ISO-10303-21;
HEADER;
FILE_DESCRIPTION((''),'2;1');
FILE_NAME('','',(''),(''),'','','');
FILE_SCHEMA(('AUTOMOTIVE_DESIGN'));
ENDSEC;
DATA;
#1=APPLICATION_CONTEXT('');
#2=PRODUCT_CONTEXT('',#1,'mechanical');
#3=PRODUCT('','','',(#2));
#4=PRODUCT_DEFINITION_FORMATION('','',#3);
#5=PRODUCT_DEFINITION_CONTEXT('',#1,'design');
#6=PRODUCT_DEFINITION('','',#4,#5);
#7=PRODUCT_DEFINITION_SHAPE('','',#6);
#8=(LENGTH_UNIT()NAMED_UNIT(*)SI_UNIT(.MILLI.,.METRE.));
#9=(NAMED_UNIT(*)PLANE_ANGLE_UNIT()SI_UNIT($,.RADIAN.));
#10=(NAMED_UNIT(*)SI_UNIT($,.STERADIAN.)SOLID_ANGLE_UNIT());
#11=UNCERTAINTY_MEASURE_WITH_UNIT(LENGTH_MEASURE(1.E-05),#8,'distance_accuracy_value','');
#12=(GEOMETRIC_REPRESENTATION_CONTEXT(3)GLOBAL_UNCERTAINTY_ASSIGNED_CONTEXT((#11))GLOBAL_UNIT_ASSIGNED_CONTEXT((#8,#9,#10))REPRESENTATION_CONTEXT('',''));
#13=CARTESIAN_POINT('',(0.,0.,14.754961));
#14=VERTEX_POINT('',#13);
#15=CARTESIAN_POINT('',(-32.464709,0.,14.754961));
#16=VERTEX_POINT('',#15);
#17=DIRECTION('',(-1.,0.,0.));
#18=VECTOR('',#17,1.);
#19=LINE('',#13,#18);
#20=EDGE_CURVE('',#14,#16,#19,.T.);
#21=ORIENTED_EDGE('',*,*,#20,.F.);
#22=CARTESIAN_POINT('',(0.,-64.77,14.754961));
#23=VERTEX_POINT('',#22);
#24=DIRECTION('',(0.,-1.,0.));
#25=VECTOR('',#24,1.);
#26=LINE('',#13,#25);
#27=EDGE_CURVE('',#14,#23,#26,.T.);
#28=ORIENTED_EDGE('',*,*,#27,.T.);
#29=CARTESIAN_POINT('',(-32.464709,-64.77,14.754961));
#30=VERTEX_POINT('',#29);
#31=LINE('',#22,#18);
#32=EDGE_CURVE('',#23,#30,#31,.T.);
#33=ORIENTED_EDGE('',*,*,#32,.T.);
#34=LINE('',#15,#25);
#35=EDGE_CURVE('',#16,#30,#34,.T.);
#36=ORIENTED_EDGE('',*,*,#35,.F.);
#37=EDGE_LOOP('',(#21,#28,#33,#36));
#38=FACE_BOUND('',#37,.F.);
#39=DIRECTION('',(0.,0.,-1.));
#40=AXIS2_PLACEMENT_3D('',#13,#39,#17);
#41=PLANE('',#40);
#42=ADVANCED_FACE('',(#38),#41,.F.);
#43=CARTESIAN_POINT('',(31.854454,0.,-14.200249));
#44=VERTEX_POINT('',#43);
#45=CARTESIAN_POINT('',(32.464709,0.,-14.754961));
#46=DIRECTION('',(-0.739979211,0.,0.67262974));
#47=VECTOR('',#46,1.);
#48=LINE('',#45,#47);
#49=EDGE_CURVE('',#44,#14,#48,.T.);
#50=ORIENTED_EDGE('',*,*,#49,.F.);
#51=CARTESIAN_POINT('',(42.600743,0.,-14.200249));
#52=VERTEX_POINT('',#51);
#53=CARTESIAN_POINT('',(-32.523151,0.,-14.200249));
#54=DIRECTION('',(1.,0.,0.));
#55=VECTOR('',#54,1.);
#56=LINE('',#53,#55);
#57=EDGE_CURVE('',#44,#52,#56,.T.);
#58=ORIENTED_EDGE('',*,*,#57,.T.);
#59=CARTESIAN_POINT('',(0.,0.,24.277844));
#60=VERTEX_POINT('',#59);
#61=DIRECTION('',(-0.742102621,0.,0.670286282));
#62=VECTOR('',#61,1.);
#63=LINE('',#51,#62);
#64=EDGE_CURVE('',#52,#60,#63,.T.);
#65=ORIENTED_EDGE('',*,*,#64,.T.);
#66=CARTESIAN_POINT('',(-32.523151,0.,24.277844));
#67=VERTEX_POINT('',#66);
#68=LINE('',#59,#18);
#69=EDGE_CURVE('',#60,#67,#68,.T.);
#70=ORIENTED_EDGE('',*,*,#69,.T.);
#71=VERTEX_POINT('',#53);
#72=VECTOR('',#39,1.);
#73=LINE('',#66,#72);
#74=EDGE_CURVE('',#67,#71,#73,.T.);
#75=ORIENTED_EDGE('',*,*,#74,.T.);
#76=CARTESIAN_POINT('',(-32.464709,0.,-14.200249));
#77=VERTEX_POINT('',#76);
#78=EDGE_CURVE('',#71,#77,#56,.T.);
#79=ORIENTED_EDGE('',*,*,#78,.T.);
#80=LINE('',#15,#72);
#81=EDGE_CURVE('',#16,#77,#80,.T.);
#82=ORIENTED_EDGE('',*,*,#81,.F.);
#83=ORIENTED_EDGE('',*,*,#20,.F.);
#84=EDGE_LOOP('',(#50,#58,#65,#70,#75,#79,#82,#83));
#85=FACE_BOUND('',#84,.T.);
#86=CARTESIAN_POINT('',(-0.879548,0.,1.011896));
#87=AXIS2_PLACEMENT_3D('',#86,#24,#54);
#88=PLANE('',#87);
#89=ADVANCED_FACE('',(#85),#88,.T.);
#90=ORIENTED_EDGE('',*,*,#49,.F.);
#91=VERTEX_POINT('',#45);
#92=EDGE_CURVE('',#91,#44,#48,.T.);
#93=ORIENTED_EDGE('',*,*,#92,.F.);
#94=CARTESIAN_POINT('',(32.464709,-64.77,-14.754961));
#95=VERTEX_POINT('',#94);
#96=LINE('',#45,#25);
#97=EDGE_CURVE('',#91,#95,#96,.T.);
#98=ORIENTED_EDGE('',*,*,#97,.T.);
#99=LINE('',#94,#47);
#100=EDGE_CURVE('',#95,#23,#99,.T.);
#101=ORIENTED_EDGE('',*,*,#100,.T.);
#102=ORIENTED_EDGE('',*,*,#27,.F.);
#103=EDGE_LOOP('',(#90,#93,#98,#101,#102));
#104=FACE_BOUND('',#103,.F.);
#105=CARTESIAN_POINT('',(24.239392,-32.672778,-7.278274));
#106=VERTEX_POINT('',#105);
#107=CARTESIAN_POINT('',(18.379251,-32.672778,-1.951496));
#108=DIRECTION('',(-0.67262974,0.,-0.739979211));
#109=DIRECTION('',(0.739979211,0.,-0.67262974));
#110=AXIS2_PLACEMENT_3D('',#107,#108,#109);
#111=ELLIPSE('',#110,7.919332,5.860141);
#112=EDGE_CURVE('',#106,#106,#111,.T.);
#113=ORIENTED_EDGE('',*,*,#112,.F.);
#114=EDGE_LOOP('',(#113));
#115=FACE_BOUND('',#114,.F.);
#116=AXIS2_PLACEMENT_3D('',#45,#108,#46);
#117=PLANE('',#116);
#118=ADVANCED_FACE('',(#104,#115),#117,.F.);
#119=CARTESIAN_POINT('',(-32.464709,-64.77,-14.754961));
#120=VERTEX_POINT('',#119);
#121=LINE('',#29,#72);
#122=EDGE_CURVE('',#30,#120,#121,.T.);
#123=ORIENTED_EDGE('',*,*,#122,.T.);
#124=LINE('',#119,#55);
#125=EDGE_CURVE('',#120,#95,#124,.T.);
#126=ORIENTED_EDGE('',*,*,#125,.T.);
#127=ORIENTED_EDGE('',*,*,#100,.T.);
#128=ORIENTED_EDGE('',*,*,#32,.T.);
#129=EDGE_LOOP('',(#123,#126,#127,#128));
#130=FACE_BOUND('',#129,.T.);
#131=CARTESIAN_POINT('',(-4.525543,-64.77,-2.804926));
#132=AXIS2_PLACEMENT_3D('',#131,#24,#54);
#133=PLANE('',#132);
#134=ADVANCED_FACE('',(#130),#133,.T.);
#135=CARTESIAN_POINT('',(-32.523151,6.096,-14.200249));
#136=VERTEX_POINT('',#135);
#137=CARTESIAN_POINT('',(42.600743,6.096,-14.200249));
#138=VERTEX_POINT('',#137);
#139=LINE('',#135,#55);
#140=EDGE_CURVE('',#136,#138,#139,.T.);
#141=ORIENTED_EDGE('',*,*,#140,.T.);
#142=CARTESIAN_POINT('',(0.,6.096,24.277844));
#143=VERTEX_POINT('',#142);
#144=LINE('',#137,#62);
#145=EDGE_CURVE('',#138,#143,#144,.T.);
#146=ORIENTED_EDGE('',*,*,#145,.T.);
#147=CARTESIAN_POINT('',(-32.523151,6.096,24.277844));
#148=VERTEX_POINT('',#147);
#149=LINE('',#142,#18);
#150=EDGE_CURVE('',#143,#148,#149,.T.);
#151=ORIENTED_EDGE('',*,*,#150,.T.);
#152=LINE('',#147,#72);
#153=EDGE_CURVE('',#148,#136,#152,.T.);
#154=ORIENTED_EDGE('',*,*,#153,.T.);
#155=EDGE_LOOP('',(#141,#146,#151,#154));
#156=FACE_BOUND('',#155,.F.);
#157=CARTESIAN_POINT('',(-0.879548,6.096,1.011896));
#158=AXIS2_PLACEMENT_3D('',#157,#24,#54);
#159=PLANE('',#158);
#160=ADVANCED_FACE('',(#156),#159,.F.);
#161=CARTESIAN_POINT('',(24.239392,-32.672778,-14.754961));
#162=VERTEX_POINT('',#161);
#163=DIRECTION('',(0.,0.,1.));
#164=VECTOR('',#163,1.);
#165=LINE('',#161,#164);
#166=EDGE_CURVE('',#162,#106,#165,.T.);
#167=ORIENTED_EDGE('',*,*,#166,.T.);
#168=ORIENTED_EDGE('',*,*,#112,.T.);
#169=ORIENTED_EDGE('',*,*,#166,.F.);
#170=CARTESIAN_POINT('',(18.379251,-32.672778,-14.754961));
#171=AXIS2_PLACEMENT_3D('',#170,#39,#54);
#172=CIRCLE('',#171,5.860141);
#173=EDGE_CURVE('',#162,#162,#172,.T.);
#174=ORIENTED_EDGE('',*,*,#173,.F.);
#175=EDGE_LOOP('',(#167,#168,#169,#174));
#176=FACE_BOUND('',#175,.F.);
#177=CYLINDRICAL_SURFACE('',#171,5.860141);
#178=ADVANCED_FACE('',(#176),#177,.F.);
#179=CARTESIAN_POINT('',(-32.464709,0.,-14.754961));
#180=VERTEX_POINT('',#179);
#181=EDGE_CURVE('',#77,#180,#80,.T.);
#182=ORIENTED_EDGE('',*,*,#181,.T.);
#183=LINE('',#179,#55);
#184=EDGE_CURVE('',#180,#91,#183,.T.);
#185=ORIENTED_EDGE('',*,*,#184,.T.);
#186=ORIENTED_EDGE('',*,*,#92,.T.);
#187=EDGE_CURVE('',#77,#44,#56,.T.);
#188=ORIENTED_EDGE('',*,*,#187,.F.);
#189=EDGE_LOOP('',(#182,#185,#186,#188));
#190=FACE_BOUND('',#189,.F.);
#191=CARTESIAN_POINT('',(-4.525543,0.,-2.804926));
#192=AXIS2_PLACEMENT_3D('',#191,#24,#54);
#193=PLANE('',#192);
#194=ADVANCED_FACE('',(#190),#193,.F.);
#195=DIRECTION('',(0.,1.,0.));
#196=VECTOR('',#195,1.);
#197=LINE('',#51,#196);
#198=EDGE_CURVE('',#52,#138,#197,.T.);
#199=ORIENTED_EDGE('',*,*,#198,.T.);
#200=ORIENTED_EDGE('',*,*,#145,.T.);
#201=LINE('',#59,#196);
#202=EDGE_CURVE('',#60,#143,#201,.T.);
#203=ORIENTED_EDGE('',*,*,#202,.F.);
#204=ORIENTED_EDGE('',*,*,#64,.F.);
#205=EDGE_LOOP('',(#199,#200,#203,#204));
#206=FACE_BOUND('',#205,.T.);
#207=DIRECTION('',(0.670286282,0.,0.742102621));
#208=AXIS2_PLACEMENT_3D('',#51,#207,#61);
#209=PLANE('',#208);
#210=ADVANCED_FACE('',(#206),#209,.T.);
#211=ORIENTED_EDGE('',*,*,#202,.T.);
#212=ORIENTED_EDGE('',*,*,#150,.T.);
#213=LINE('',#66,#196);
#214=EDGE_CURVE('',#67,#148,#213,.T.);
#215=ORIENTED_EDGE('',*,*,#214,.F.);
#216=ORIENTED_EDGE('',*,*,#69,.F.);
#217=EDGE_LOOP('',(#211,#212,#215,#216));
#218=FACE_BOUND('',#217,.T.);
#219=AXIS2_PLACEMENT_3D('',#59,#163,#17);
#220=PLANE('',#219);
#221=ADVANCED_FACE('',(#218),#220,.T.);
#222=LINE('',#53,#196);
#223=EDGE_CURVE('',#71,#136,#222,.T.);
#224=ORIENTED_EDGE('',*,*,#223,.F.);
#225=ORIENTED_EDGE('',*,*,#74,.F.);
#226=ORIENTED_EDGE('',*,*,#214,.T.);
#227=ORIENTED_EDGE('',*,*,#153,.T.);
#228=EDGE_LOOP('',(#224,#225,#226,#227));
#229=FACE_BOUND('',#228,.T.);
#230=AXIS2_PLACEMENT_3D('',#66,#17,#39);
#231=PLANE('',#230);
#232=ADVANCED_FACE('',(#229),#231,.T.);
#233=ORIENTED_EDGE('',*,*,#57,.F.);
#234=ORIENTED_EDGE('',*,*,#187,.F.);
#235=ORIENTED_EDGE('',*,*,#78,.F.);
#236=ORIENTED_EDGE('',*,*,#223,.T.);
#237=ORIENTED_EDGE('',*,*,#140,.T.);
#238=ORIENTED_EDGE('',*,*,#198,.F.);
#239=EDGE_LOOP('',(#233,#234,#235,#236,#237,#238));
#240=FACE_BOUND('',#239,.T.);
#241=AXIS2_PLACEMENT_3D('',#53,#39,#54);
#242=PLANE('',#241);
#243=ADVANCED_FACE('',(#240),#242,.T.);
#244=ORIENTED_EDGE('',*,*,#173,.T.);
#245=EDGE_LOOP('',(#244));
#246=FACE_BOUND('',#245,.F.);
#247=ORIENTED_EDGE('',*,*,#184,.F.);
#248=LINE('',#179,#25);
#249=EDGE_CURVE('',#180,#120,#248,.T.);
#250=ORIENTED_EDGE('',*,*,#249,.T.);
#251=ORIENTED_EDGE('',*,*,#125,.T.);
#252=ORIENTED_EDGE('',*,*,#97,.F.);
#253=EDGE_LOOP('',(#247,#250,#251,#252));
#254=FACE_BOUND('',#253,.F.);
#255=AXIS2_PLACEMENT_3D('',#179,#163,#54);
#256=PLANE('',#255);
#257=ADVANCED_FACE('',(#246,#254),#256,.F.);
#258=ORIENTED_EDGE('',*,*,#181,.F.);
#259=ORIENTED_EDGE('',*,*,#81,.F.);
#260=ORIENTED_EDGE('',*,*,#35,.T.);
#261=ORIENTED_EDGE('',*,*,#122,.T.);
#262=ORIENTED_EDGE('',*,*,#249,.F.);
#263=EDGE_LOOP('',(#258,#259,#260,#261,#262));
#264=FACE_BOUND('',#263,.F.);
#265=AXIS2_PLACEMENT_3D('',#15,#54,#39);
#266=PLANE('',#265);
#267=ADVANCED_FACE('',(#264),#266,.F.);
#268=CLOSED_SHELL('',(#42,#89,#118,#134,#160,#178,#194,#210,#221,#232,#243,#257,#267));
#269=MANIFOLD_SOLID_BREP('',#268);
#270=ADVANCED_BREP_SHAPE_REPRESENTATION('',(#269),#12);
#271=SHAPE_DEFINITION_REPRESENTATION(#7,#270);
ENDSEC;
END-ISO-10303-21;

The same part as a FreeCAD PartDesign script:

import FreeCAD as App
import Part
import Sketcher
from FreeCAD import Vector
Q = App.Units.Quantity


def add_polygon(sketch, points):
    """Adds a closed chain of lines whose ends are joined by coincident constraints."""
    first, n = sketch.GeometryCount, len(points)
    for a, b in zip(points, points[1:] + points[:1]):
        sketch.addGeometry(Part.LineSegment(App.Vector(*a, 0), App.Vector(*b, 0)), False)
    for i in range(n):
        sketch.addConstraint(Sketcher.Constraint("Coincident", first + i, 2, first + (i + 1) % n, 1))

doc = App.newDocument("Part")
body = doc.addObject("PartDesign::Body", "Body")

# Sketch on XZ plane
sketch1 = doc.addObject("Sketcher::SketchObject", "Sketch")
body.addObject(sketch1)
sketch1.AttachmentSupport = (doc.XZ_Plane, [""])
sketch1.MapMode = "FlatFace"
add_polygon(sketch1, [(32.464709, -14.754961), (0, 14.754961), (-32.464709, 14.754961), (-32.464709, -14.754961)])  # lines 0-3
sketch1.addConstraint(Sketcher.Constraint("Horizontal", 1))
sketch1.addConstraint(Sketcher.Constraint("Vertical", 2))
sketch1.addConstraint(Sketcher.Constraint("Horizontal", 3))
sketch1.addConstraint(Sketcher.Constraint("Symmetric", 1, 2, 3, 2, -1, 1))
sketch1.addConstraint(Sketcher.Constraint("PointOnObject", 0, 2, -2))
sketch1.addConstraint(Sketcher.Constraint("DistanceX", 1, 2, 1, 1, Q("32.464709 mm")))
sketch1.addConstraint(Sketcher.Constraint("DistanceY", 2, 2, 2, 1, Q("29.509922 mm")))
pad1 = doc.addObject("PartDesign::Pad", "Pad")
body.addObject(pad1)
pad1.Profile = sketch1
pad1.Length = Q("2.55 in")

# Sketch on XZ plane
sketch2 = doc.addObject("Sketcher::SketchObject", "Sketch001")
body.addObject(sketch2)
sketch2.AttachmentSupport = (doc.XZ_Plane, [""])
sketch2.MapMode = "FlatFace"
add_polygon(sketch2, [(-32.523151, -14.200249), (42.600743, -14.200249), (0, 24.277844), (-32.523151, 24.277844)])  # lines 0-3
sketch2.addConstraint(Sketcher.Constraint("Horizontal", 0))
sketch2.addConstraint(Sketcher.Constraint("Horizontal", 2))
sketch2.addConstraint(Sketcher.Constraint("Vertical", 3))
sketch2.addConstraint(Sketcher.Constraint("PointOnObject", 1, 2, -2))
sketch2.addConstraint(Sketcher.Constraint("DistanceX", 2, 2, 2, 1, Q("32.523151 mm")))
sketch2.addConstraint(Sketcher.Constraint("Distance", 1, Q("57.405461 mm")))
sketch2.addConstraint(Sketcher.Constraint("DistanceX", 0, 1, 0, 2, Q("75.123894 mm")))
sketch2.addConstraint(Sketcher.Constraint("DistanceY", 0, 2, -1, 1, Q("14.200249 mm")))
pad2 = doc.addObject("PartDesign::Pad", "Pad001")
body.addObject(pad2)
pad2.Profile = sketch2
pad2.Length = Q("0.24 in")
pad2.Reversed = True

# Sketch on XY plane
sketch3 = doc.addObject("Sketcher::SketchObject", "Sketch002")
body.addObject(sketch3)
sketch3.AttachmentSupport = (doc.XY_Plane, [""])
sketch3.MapMode = "FlatFace"
sketch3.AttachmentOffset = App.Placement(Vector(0, 0, -14.754961), App.Rotation())
sketch3.addGeometry(Part.Circle(Vector(18.379251, -32.672778, 0), Vector(0, 0, 1), 5.860141), False)
sketch3.addConstraint(Sketcher.Constraint("Diameter", 0, Q("11.720282 mm")))
sketch3.addConstraint(Sketcher.Constraint("DistanceX", -1, 1, 0, 3, Q("18.379251 mm")))
sketch3.addConstraint(Sketcher.Constraint("DistanceY", 0, 3, -1, 1, Q("32.672778 mm")))
pocket1 = doc.addObject("PartDesign::Pocket", "Pocket")
body.addObject(pocket1)
pocket1.Profile = sketch3
pocket1.Length = Q("3.12 in")
pocket1.Reversed = True

doc.recompute()
